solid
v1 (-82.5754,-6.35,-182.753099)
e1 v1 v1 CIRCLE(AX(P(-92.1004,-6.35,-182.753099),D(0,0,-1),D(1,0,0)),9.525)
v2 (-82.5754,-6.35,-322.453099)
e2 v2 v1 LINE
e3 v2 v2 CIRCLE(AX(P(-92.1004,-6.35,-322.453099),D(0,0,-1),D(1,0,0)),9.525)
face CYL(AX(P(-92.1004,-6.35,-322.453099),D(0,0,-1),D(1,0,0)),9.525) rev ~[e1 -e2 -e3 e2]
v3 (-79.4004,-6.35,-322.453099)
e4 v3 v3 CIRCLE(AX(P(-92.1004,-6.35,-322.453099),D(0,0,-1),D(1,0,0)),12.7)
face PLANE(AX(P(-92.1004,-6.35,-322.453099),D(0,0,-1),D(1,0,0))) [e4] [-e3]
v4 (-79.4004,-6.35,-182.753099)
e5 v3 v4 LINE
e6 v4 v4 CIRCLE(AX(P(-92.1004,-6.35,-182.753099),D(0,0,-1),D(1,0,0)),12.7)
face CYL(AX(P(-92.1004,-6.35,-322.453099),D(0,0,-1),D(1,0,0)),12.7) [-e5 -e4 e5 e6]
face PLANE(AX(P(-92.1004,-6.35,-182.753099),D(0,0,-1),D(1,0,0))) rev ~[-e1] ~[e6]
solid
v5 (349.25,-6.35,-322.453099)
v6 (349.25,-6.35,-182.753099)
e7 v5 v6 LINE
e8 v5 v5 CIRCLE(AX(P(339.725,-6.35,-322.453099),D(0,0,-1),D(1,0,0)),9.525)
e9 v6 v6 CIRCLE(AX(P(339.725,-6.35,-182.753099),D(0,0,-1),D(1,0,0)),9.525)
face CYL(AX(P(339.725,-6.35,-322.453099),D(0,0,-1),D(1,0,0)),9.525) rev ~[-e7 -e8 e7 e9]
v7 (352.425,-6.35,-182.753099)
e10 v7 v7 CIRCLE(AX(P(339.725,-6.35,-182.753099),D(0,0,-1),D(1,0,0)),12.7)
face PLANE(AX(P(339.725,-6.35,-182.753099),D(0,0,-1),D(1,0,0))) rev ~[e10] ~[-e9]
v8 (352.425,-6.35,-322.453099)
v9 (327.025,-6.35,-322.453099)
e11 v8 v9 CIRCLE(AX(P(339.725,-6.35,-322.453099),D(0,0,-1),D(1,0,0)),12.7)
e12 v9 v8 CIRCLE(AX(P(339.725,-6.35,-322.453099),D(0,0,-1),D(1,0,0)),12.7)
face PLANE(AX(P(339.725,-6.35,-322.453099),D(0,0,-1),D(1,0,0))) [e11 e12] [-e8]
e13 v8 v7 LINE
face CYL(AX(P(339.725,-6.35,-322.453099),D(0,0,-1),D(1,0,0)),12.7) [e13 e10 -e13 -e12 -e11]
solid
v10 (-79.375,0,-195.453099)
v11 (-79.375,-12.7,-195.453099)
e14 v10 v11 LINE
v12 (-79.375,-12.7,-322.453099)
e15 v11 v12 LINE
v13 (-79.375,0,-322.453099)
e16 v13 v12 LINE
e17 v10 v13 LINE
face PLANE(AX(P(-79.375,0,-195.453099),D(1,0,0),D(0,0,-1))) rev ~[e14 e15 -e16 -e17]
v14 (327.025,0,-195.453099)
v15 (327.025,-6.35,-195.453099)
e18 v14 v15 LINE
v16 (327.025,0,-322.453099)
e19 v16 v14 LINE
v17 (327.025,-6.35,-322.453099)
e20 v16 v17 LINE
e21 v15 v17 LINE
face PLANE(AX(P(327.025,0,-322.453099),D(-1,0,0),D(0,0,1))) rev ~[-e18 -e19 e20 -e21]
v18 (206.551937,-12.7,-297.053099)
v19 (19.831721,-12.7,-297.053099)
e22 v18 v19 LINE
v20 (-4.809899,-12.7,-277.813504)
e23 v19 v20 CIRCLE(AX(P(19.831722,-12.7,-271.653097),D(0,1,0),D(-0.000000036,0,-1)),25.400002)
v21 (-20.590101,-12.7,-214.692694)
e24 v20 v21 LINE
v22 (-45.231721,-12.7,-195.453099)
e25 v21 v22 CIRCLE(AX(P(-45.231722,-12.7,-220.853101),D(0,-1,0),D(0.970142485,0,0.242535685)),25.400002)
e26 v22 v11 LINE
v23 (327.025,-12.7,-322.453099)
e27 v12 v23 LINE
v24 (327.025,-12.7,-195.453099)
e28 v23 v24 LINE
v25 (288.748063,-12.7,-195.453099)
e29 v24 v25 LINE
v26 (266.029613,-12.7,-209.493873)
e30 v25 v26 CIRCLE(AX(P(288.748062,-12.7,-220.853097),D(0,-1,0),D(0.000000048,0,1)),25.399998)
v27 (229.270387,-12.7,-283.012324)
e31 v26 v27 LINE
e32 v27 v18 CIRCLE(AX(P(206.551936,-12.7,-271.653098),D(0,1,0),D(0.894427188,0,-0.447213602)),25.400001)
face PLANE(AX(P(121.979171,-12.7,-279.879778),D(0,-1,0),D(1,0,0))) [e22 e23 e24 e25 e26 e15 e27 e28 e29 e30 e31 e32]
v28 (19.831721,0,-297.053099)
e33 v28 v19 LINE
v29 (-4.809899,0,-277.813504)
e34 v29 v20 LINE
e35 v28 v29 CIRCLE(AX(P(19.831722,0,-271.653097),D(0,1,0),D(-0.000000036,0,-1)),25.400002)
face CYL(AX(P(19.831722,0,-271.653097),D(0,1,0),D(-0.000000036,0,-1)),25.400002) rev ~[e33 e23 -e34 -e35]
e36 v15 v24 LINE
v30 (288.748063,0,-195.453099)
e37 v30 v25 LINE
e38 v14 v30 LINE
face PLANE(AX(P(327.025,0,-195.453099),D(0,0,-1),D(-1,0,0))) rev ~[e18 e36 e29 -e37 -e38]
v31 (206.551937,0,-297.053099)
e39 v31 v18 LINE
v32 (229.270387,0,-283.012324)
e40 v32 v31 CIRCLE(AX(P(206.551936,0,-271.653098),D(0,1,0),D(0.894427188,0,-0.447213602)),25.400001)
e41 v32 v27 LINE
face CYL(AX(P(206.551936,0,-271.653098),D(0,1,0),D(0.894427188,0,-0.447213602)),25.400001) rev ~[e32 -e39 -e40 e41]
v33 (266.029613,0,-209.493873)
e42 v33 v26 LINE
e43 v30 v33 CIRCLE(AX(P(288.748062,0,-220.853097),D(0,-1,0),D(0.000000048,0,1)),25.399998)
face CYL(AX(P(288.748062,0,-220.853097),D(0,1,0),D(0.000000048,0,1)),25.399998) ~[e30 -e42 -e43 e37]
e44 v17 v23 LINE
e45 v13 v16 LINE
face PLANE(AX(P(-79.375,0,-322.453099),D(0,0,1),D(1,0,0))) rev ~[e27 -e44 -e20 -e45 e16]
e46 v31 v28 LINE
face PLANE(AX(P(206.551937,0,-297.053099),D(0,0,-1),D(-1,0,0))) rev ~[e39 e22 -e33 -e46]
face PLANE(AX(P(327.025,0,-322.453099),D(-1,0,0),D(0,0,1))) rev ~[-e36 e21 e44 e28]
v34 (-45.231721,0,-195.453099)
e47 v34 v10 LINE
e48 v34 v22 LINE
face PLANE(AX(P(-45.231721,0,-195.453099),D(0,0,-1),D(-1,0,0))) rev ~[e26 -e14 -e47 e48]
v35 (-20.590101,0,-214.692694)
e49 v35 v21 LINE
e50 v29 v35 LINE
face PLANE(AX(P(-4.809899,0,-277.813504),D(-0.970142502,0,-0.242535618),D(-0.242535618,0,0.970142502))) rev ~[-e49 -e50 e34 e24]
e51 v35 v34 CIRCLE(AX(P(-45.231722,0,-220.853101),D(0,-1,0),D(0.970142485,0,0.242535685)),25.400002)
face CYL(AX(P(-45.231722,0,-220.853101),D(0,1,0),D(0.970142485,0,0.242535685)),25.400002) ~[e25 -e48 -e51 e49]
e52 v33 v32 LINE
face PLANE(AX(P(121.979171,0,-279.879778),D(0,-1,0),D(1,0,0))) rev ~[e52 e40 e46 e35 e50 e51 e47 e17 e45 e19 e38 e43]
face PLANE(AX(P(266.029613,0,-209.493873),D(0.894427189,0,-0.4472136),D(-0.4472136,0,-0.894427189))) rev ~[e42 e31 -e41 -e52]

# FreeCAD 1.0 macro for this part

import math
import FreeCAD as App
import Part
import Sketcher
Q = App.Units.Quantity

doc = App.newDocument("Part")
body = doc.addObject("PartDesign::Body", "Body")
body.AllowCompound = True

# Sketch on XZ plane
sketch1 = doc.addObject("Sketcher::SketchObject", "Sketch")
body.addObject(sketch1)
sketch1.AttachmentSupport = (doc.XZ_Plane, [""])
sketch1.MapMode = "FlatFace"
sketch1.addGeometry(Part.LineSegment(App.Vector(206.551937, -297.053099, 0), App.Vector(19.831721, -297.053099, 0)), False)
sketch1.addGeometry(Part.ArcOfCircle(Part.Circle(App.Vector(19.831722, -271.653097, 0), App.Vector(0, 0, 1), 25.400002), math.radians(-165.963753), math.radians(-90.000002)), False)
sketch1.addGeometry(Part.LineSegment(App.Vector(-4.809899, -277.813504, 0), App.Vector(-20.590101, -214.692694, 0)), False)
sketch1.addGeometry(Part.ArcOfCircle(Part.Circle(App.Vector(-45.231722, -220.853101, 0), App.Vector(0, 0, 1), 25.400002), math.radians(14.036247), math.radians(89.999998)), False)
sketch1.addGeometry(Part.LineSegment(App.Vector(-45.231721, -195.453099, 0), App.Vector(-79.375, -195.453099, 0)), False)
sketch1.addGeometry(Part.LineSegment(App.Vector(-79.375, -195.453099, 0), App.Vector(-79.375, -322.453099, 0)), False)
sketch1.addGeometry(Part.LineSegment(App.Vector(-79.375, -322.453099, 0), App.Vector(327.025, -322.453099, 0)), False)
sketch1.addGeometry(Part.LineSegment(App.Vector(327.025, -322.453099, 0), App.Vector(327.025, -195.453099, 0)), False)
sketch1.addGeometry(Part.LineSegment(App.Vector(327.025, -195.453099, 0), App.Vector(288.748063, -195.453099, 0)), False)
sketch1.addGeometry(Part.ArcOfCircle(Part.Circle(App.Vector(288.748062, -220.853097, 0), App.Vector(0, 0, 1), 25.399998), math.radians(89.999997), math.radians(153.434951)), False)
sketch1.addGeometry(Part.LineSegment(App.Vector(266.029613, -209.493873, 0), App.Vector(229.270387, -283.012324, 0)), False)
sketch1.addGeometry(Part.ArcOfCircle(Part.Circle(App.Vector(206.551936, -271.653098, 0), App.Vector(0, 0, 1), 25.400001), math.radians(-89.999997), math.radians(-26.565052)), False)
sketch1.addConstraint(Sketcher.Constraint("Tangent", 0, 2, 1, 2))
sketch1.addConstraint(Sketcher.Constraint("Tangent", 1, 1, 2, 1))
sketch1.addConstraint(Sketcher.Constraint("Tangent", 2, 2, 3, 1))
sketch1.addConstraint(Sketcher.Constraint("Tangent", 3, 2, 4, 1))
sketch1.addConstraint(Sketcher.Constraint("Coincident", 4, 2, 5, 1))
sketch1.addConstraint(Sketcher.Constraint("Coincident", 5, 2, 6, 1))
sketch1.addConstraint(Sketcher.Constraint("Coincident", 6, 2, 7, 1))
sketch1.addConstraint(Sketcher.Constraint("Coincident", 7, 2, 8, 1))
sketch1.addConstraint(Sketcher.Constraint("Tangent", 8, 2, 9, 1))
sketch1.addConstraint(Sketcher.Constraint("Tangent", 9, 2, 10, 1))
sketch1.addConstraint(Sketcher.Constraint("Tangent", 10, 2, 11, 2))
sketch1.addConstraint(Sketcher.Constraint("Tangent", 11, 1, 0, 1))
sketch1.addConstraint(Sketcher.Constraint("Horizontal", 0))
sketch1.addConstraint(Sketcher.Constraint("Horizontal", 4))
sketch1.addConstraint(Sketcher.Constraint("Vertical", 5))
sketch1.addConstraint(Sketcher.Constraint("Horizontal", 6))
sketch1.addConstraint(Sketcher.Constraint("Vertical", 7))
sketch1.addConstraint(Sketcher.Constraint("Horizontal", 8))
sketch1.addConstraint(Sketcher.Constraint("Equal", 1, 3))
sketch1.addConstraint(Sketcher.Constraint("Equal", 3, 11))
sketch1.addConstraint(Sketcher.Constraint("Horizontal", 4, 2, 7, 2))
sketch1.addConstraint(Sketcher.Constraint("Radius", 1, Q("1.0000001 in")))
sketch1.addConstraint(Sketcher.Constraint("Radius", 9, Q("0.9999999 in")))
sketch1.addConstraint(Sketcher.Constraint("DistanceX", 6, 1, 6, 2, Q("16 in")))
sketch1.addConstraint(Sketcher.Constraint("DistanceY", 5, 2, 5, 1, Q("5 in")))
sketch1.addConstraint(Sketcher.Constraint("DistanceY", 1, 3, 3, 3, Q("1.9999999 in")))
sketch1.addConstraint(Sketcher.Constraint("DistanceX", 4, 2, -1, 1, Q("3.125 in")))
sketch1.addConstraint(Sketcher.Constraint("DistanceX", 1, 1, 9, 3, Q("11.5574 in")))
sketch1.addConstraint(Sketcher.Constraint("DistanceX", 2, 2, 11, 3, Q("8.9425999 in")))
sketch1.addConstraint(Sketcher.Constraint("DistanceX", 4, 2, 4, 1, 34.143279))
sketch1.addConstraint(Sketcher.Constraint("DistanceY", 3, 3, -1, 1, 220.853101))
sketch1.addConstraint(Sketcher.Constraint("DistanceX", 1, 1, -1, 1, 4.809899))
pad1 = doc.addObject("PartDesign::Pad", "Pad")
body.addObject(pad1)
pad1.Profile = sketch1
pad1.Length = Q("0.5 in")

# Sketch on XY plane
sketch2 = doc.addObject("Sketcher::SketchObject", "Sketch001")
body.addObject(sketch2)
sketch2.AttachmentSupport = (doc.XY_Plane, [""])
sketch2.MapMode = "FlatFace"
sketch2.AttachmentOffset = App.Placement(App.Vector(0, 0, -322.453099), App.Rotation())
sketch2.addGeometry(Part.Circle(App.Vector(339.725, -6.35, 0), App.Vector(0, 0, 1), 12.7), False)
sketch2.addGeometry(Part.Circle(App.Vector(339.725, -6.35, 0), App.Vector(0, 0, 1), 9.525), False)
sketch2.addConstraint(Sketcher.Constraint("Coincident", 1, 3, 0, 3))
sketch2.addConstraint(Sketcher.Constraint("Diameter", 0, Q("1 in")))
sketch2.addConstraint(Sketcher.Constraint("Diameter", 1, Q("0.75 in")))
sketch2.addConstraint(Sketcher.Constraint("DistanceY", 0, 3, -1, 1, Q("0.25 in")))
sketch2.addConstraint(Sketcher.Constraint("DistanceX", -1, 1, 0, 3, Q("13.375 in")))
pad2 = doc.addObject("PartDesign::Pad", "Pad001")
body.addObject(pad2)
pad2.Profile = sketch2
pad2.Length = Q("5.5 in")
body2 = doc.addObject("PartDesign::Body", "Body001")

# Sketch on XY plane
sketch3 = doc.addObject("Sketcher::SketchObject", "Sketch002")
body2.addObject(sketch3)
sketch3.AttachmentSupport = (doc.getObject("XY_Plane001"), [""])
sketch3.MapMode = "FlatFace"
sketch3.AttachmentOffset = App.Placement(App.Vector(0, 0, -322.453099), App.Rotation())
sketch3.addGeometry(Part.Circle(App.Vector(-92.1004, -6.35, 0), App.Vector(0, 0, 1), 12.7), False)
sketch3.addGeometry(Part.Circle(App.Vector(-92.1004, -6.35, 0), App.Vector(0, 0, 1), 9.525), False)
sketch3.addConstraint(Sketcher.Constraint("Coincident", 1, 3, 0, 3))
sketch3.addConstraint(Sketcher.Constraint("Diameter", 0, Q("1 in")))
sketch3.addConstraint(Sketcher.Constraint("Diameter", 1, Q("0.75 in")))
sketch3.addConstraint(Sketcher.Constraint("DistanceY", 0, 3, -1, 1, Q("0.25 in")))
sketch3.addConstraint(Sketcher.Constraint("DistanceX", 0, 3, -1, 1, Q("3.626 in")))
pad3 = doc.addObject("PartDesign::Pad", "Pad002")
body2.addObject(pad3)
pad3.Profile = sketch3
pad3.Length = Q("5.5 in")

doc.recompute()
